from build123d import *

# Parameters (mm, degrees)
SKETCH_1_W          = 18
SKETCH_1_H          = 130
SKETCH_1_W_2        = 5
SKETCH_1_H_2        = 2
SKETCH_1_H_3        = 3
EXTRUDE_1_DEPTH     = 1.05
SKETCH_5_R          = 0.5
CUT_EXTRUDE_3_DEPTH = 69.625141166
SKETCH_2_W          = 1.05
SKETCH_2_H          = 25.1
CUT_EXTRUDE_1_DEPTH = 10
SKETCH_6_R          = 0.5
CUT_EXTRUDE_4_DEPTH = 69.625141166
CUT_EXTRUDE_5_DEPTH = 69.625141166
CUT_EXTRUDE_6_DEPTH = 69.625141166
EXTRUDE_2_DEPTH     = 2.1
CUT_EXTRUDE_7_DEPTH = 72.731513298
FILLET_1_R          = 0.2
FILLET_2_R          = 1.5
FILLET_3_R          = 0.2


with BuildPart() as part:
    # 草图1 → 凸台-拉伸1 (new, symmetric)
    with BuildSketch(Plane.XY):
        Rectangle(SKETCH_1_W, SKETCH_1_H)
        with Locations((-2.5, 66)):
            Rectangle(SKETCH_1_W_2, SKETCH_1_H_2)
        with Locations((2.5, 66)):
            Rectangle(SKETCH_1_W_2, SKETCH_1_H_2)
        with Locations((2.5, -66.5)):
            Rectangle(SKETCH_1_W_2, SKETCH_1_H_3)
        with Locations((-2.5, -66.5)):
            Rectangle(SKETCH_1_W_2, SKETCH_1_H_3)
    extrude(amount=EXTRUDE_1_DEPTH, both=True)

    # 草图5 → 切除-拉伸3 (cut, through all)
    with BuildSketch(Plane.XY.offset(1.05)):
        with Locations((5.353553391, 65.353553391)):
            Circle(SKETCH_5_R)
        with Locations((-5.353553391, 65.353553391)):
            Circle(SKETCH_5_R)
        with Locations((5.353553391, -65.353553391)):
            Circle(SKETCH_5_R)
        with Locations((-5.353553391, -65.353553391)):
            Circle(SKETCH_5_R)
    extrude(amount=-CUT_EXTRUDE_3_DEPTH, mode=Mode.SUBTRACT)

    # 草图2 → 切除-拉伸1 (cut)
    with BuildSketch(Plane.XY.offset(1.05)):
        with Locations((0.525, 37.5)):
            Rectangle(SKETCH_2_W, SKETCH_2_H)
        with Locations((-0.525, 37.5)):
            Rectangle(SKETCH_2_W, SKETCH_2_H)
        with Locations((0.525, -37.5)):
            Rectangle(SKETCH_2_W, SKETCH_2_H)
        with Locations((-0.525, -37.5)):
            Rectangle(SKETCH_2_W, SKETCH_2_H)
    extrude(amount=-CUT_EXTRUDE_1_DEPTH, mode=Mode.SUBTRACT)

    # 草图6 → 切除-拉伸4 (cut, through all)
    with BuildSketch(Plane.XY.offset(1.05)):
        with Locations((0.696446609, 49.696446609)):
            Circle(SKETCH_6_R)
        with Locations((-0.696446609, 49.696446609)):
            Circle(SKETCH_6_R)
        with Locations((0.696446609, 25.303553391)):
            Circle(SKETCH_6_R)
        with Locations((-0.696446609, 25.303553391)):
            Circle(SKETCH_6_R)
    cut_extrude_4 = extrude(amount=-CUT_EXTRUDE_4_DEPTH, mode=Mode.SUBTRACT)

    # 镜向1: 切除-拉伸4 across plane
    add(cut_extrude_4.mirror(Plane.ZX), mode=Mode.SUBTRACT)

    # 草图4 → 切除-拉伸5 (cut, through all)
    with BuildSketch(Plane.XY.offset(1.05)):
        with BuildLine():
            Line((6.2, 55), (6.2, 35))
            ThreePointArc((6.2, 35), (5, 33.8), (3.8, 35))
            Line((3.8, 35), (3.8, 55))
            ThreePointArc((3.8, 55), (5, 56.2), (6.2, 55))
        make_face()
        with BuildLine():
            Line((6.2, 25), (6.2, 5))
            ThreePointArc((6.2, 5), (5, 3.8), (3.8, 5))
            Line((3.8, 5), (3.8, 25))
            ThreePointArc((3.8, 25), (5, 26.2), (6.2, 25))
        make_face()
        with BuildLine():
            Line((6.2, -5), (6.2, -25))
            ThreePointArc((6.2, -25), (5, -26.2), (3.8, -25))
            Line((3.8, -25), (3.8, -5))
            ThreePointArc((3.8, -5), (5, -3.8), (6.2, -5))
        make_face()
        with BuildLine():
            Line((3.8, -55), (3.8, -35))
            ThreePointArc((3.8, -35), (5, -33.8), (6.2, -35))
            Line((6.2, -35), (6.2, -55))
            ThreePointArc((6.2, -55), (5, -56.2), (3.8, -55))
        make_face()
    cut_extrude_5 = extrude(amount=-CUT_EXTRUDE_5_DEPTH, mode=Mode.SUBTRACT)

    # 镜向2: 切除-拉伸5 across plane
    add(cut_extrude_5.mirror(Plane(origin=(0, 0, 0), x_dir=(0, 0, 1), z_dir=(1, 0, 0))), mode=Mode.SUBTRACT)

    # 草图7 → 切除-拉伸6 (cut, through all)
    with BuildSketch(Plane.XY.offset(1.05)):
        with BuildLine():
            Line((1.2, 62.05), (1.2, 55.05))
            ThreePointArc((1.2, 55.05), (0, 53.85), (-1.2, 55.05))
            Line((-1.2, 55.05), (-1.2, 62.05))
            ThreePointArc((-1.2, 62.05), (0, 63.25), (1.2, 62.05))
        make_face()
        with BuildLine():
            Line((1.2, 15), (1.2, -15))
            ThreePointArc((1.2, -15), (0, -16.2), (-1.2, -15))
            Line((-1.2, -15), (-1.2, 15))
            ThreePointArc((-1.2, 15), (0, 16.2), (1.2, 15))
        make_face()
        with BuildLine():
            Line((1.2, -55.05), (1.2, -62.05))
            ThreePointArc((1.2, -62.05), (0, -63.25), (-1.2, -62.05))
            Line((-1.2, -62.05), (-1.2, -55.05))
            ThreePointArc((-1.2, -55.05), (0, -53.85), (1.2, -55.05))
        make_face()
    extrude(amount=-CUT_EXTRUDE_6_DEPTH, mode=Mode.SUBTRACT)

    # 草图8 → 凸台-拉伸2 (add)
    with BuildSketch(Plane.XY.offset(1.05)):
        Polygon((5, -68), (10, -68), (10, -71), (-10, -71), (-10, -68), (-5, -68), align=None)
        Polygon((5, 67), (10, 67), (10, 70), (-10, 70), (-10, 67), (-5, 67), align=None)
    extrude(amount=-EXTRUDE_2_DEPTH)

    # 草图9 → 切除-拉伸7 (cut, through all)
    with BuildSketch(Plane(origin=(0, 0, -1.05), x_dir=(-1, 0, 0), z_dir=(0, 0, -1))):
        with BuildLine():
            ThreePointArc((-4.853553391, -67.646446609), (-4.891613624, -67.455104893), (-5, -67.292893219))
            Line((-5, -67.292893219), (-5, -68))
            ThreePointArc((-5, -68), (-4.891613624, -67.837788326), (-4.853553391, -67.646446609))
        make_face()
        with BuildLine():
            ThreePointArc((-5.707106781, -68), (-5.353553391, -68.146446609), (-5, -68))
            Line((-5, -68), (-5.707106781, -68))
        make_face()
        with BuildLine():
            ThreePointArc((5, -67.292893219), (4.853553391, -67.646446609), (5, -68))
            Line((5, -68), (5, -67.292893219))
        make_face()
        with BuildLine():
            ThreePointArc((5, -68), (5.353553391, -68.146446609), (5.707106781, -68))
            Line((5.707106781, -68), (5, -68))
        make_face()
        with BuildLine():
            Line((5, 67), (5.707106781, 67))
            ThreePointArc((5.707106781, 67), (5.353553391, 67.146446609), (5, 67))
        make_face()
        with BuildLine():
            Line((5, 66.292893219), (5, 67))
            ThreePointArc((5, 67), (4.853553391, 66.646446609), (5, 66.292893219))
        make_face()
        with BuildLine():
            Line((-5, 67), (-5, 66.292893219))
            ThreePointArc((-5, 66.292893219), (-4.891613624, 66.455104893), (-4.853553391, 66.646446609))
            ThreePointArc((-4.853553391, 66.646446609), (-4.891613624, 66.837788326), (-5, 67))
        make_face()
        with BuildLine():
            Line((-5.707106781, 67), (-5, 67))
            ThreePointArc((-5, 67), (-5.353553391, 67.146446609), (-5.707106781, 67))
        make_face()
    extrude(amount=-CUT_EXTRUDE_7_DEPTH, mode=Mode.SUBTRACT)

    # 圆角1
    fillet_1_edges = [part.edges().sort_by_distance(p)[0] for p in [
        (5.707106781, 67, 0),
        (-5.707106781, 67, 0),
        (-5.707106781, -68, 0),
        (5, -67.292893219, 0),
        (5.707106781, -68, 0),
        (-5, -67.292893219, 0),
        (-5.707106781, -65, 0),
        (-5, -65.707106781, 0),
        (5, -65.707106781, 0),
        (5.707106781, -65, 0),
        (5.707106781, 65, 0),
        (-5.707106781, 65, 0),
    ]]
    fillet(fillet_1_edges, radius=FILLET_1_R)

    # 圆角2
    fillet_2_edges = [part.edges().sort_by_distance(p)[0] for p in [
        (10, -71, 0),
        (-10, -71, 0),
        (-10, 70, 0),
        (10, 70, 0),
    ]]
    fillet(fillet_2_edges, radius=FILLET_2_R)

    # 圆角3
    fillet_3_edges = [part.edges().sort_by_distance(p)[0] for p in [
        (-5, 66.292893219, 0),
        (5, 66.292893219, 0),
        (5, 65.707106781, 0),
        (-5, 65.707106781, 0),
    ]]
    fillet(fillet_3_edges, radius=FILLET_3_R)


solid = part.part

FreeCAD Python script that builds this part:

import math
import FreeCAD as App
import Part
import Sketcher


def edges_at(feature, points):
    """Names of the edges that pass closest to the given points."""
    edges = feature.Shape.Edges
    near = lambda p: min(range(len(edges)), key=lambda i: edges[i].distToShape(Part.Vertex(*p))[0])
    return sorted({f"Edge{near(p) + 1}" for p in points})

doc = App.newDocument("Part")
params = doc.addObject("Spreadsheet::Sheet", "Params")
for row, (alias, value) in enumerate([
    ("sketch1_width", "4 mm"),
    ("sketch1_width2", "10 mm"),
    ("sketch1_height", "130 mm"),
    ("sketch1_height2", "3 mm"),
    ("sketch1_height3", "2 mm"),
    ("pad1_length", "2.1 mm"),
    ("sketch2_diameter", "1 mm"),
    ("sketch3_width", "2.1 mm"),
    ("sketch3_height", "25.1 mm"),
    ("pocket2_length", "10 mm"),
    ("sketch4_diameter", "1 mm"),
    ("sketch5_radius", "1.2 mm"),
    ("sketch5_height", "20 mm"),
    ("sketch6_radius", "1.2 mm"),
    ("sketch6_height", "7 mm"),
    ("sketch6_height2", "30 mm"),
    ("sketch7_width", "20 mm"),
    ("sketch7_height", "3 mm"),
    ("pad2_length", "2.1 mm"),
    ("sketch8_radius", "0.5 mm"),
    ("fillet_radius", "0.2 mm"),
    ("fillet2_radius", "1.5 mm"),
    ("fillet3_radius", "0.2 mm"),
], start=1):
    params.set(f"A{row}", alias)
    params.set(f"B{row}", "=" + value)
    params.setAlias(f"B{row}", alias)

body = doc.addObject("PartDesign::Body", "Body")

# Sketch on XY plane
sketch1 = body.newObject("Sketcher::SketchObject", "Sketch")
sketch1.AttachmentSupport = (doc.getObject("XY_Plane"), [""])
sketch1.MapMode = "FlatFace"
sketch1.addGeometry([
    Part.LineSegment(App.Vector(-9, 65, 0), App.Vector(-9, -65, 0)),  # 0
    Part.LineSegment(App.Vector(-9, -65, 0), App.Vector(-5, -65, 0)),  # 1
    Part.LineSegment(App.Vector(-5, -65, 0), App.Vector(-5, -68, 0)),  # 2
    Part.LineSegment(App.Vector(-5, -68, 0), App.Vector(5, -68, 0)),  # 3
    Part.LineSegment(App.Vector(5, -68, 0), App.Vector(5, -65, 0)),  # 4
    Part.LineSegment(App.Vector(5, -65, 0), App.Vector(9, -65, 0)),  # 5
    Part.LineSegment(App.Vector(9, -65, 0), App.Vector(9, 65, 0)),  # 6
    Part.LineSegment(App.Vector(9, 65, 0), App.Vector(5, 65, 0)),  # 7
    Part.LineSegment(App.Vector(5, 65, 0), App.Vector(5, 67, 0)),  # 8
    Part.LineSegment(App.Vector(5, 67, 0), App.Vector(-5, 67, 0)),  # 9
    Part.LineSegment(App.Vector(-5, 67, 0), App.Vector(-5, 65, 0)),  # 10
    Part.LineSegment(App.Vector(-5, 65, 0), App.Vector(-9, 65, 0)),  # 11
], False)
sketch1.addConstraint([
    Sketcher.Constraint("Coincident", 0, 2, 1, 1),
    Sketcher.Constraint("Coincident", 1, 2, 2, 1),
    Sketcher.Constraint("Coincident", 2, 2, 3, 1),
    Sketcher.Constraint("Coincident", 3, 2, 4, 1),
    Sketcher.Constraint("Coincident", 4, 2, 5, 1),
    Sketcher.Constraint("Coincident", 5, 2, 6, 1),
    Sketcher.Constraint("Coincident", 6, 2, 7, 1),
    Sketcher.Constraint("Coincident", 7, 2, 8, 1),
    Sketcher.Constraint("Coincident", 8, 2, 9, 1),
    Sketcher.Constraint("Coincident", 9, 2, 10, 1),
    Sketcher.Constraint("Coincident", 10, 2, 11, 1),
    Sketcher.Constraint("Coincident", 11, 2, 0, 1),
    Sketcher.Constraint("Vertical", 0),
    Sketcher.Constraint("Horizontal", 1),
    Sketcher.Constraint("Vertical", 2),
    Sketcher.Constraint("Horizontal", 3),
    Sketcher.Constraint("Vertical", 4),
    Sketcher.Constraint("Horizontal", 5),
    Sketcher.Constraint("Vertical", 6),
    Sketcher.Constraint("Horizontal", 7),
    Sketcher.Constraint("Vertical", 8),
    Sketcher.Constraint("Horizontal", 9),
    Sketcher.Constraint("Vertical", 10),
    Sketcher.Constraint("Horizontal", 11),
    Sketcher.Constraint("Symmetric", 0, 2, 6, 2, -1, 1),
    Sketcher.Constraint("Symmetric", 4, 2, 10, 2, -1, 1),
    Sketcher.Constraint("Symmetric", 1, 2, 4, 2, -2),
    Sketcher.Constraint("Vertical", 4, 2, 7, 2),
    Sketcher.Constraint("DistanceX", 1, 1, 1, 2, 4.0),
    Sketcher.Constraint("DistanceX", 3, 1, 3, 2, 10.0),
    Sketcher.Constraint("DistanceY", 0, 2, 0, 1, 130.0),
    Sketcher.Constraint("DistanceY", 2, 2, 2, 1, 3.0),
    Sketcher.Constraint("DistanceY", 8, 1, 8, 2, 2.0),
])
sketch1.setExpression("Constraints[28]", "Params.sketch1_width")
sketch1.setExpression("Constraints[29]", "Params.sketch1_width2")
sketch1.setExpression("Constraints[30]", "Params.sketch1_height")
sketch1.setExpression("Constraints[31]", "Params.sketch1_height2")
sketch1.setExpression("Constraints[32]", "Params.sketch1_height3")
pad1 = body.newObject("PartDesign::Pad", "Pad")
pad1.Profile = sketch1
pad1.setExpression("Length", "Params.pad1_length")
pad1.Midplane = True

# Sketch on XY plane
sketch2 = body.newObject("Sketcher::SketchObject", "Sketch001")
sketch2.AttachmentSupport = (doc.getObject("XY_Plane"), [""])
sketch2.MapMode = "FlatFace"
sketch2.AttachmentOffset = App.Placement(App.Vector(0, 0, 1.05), App.Rotation())
sketch2.addGeometry([
    Part.Circle(App.Vector(5.4, 65.4, 0), App.Vector(0, 0, 1), 0.5),
    Part.Circle(App.Vector(-5.4, 65.4, 0), App.Vector(0, 0, 1), 0.5),
    Part.Circle(App.Vector(5.4, -65.4, 0), App.Vector(0, 0, 1), 0.5),
    Part.Circle(App.Vector(-5.4, -65.4, 0), App.Vector(0, 0, 1), 0.5),
], False)
sketch2.addConstraint([
    Sketcher.Constraint("Equal", 0, 1),
    Sketcher.Constraint("Equal", 1, 2),
    Sketcher.Constraint("Equal", 2, 3),
    Sketcher.Constraint("Symmetric", 1, 3, 2, 3, -1, 1),
    Sketcher.Constraint("Symmetric", 0, 3, 3, 3, -1, 1),
    Sketcher.Constraint("Symmetric", 0, 3, 1, 3, -2),
    Sketcher.Constraint("Diameter", 0, 1.0),
    Sketcher.Constraint("DistanceX", -1, 1, 0, 3, 5.353553),
    Sketcher.Constraint("DistanceY", -1, 1, 0, 3, 65.353553),
])
sketch2.setExpression("Constraints[6]", "Params.sketch2_diameter")
pocket1 = body.newObject("PartDesign::Pocket", "Pocket")
pocket1.Profile = sketch2
pocket1.Type = "ThroughAll"

# Sketch on XY plane
sketch3 = body.newObject("Sketcher::SketchObject", "Sketch002")
sketch3.AttachmentSupport = (doc.getObject("XY_Plane"), [""])
sketch3.MapMode = "FlatFace"
sketch3.AttachmentOffset = App.Placement(App.Vector(0, 0, 1.05), App.Rotation())
sketch3.addGeometry([
    Part.LineSegment(App.Vector(1.1, 24.9, 0), App.Vector(1.1, 50, 0)),  # 0
    Part.LineSegment(App.Vector(1.1, 50, 0), App.Vector(-1.1, 50, 0)),  # 1
    Part.LineSegment(App.Vector(-1.1, 50, 0), App.Vector(-1.1, 24.9, 0)),  # 2
    Part.LineSegment(App.Vector(-1.1, 24.9, 0), App.Vector(1.1, 24.9, 0)),  # 3
    Part.LineSegment(App.Vector(1.1, -50, 0), App.Vector(1.1, -24.9, 0)),  # 4
    Part.LineSegment(App.Vector(1.1, -24.9, 0), App.Vector(-1.1, -24.9, 0)),  # 5
    Part.LineSegment(App.Vector(-1.1, -24.9, 0), App.Vector(-1.1, -50, 0)),  # 6
    Part.LineSegment(App.Vector(-1.1, -50, 0), App.Vector(1.1, -50, 0)),  # 7
], False)
sketch3.addConstraint([
    Sketcher.Constraint("Coincident", 0, 2, 1, 1),
    Sketcher.Constraint("Coincident", 1, 2, 2, 1),
    Sketcher.Constraint("Coincident", 2, 2, 3, 1),
    Sketcher.Constraint("Coincident", 3, 2, 0, 1),
    Sketcher.Constraint("Coincident", 4, 2, 5, 1),
    Sketcher.Constraint("Coincident", 5, 2, 6, 1),
    Sketcher.Constraint("Coincident", 6, 2, 7, 1),
    Sketcher.Constraint("Coincident", 7, 2, 4, 1),
    Sketcher.Constraint("Vertical", 0),
    Sketcher.Constraint("Horizontal", 1),
    Sketcher.Constraint("Vertical", 2),
    Sketcher.Constraint("Horizontal", 3),
    Sketcher.Constraint("Vertical", 4),
    Sketcher.Constraint("Horizontal", 5),
    Sketcher.Constraint("Vertical", 6),
    Sketcher.Constraint("Horizontal", 7),
    Sketcher.Constraint("Symmetric", 2, 2, 4, 2, -1, 1),
    Sketcher.Constraint("Symmetric", 0, 2, 6, 2, -1, 1),
    Sketcher.Constraint("Vertical", 3, 2, 4, 2),
    Sketcher.Constraint("DistanceX", 1, 2, 1, 1, 2.1),
    Sketcher.Constraint("DistanceY", 0, 1, 0, 2, 25.1),
    Sketcher.Constraint("DistanceY", 4, 2, 0, 2, 75.0),
])
sketch3.setExpression("Constraints[19]", "Params.sketch3_width")
sketch3.setExpression("Constraints[20]", "Params.sketch3_height")
pocket2 = body.newObject("PartDesign::Pocket", "Pocket001")
pocket2.Profile = sketch3
pocket2.setExpression("Length", "Params.pocket2_length")

# Sketch on XY plane
sketch4 = body.newObject("Sketcher::SketchObject", "Sketch003")
sketch4.AttachmentSupport = (doc.getObject("XY_Plane"), [""])
sketch4.MapMode = "FlatFace"
sketch4.AttachmentOffset = App.Placement(App.Vector(0, 0, 1.05), App.Rotation())
sketch4.addGeometry([
    Part.Circle(App.Vector(0.7, 49.7, 0), App.Vector(0, 0, 1), 0.5),
    Part.Circle(App.Vector(-0.7, 49.7, 0), App.Vector(0, 0, 1), 0.5),
    Part.Circle(App.Vector(0.7, 25.3, 0), App.Vector(0, 0, 1), 0.5),
    Part.Circle(App.Vector(-0.7, 25.3, 0), App.Vector(0, 0, 1), 0.5),
], False)
sketch4.addConstraint([
    Sketcher.Constraint("Equal", 0, 1),
    Sketcher.Constraint("Equal", 1, 2),
    Sketcher.Constraint("Equal", 2, 3),
    Sketcher.Constraint("Symmetric", 0, 3, 1, 3, -2),
    Sketcher.Constraint("Symmetric", 2, 3, 3, 3, -2),
    Sketcher.Constraint("Vertical", 0, 3, 2, 3),
    Sketcher.Constraint("Diameter", 0, 1.0),
    Sketcher.Constraint("DistanceX", -1, 1, 0, 3, 0.696447),
    Sketcher.Constraint("DistanceY", -1, 1, 0, 3, 49.696447),
    Sketcher.Constraint("DistanceY", -1, 1, 2, 3, 25.303553),
])
sketch4.setExpression("Constraints[6]", "Params.sketch4_diameter")
pocket3 = body.newObject("PartDesign::Pocket", "Pocket002")
pocket3.Profile = sketch4
pocket3.Type = "ThroughAll"
doc.recompute()

mirrored = body.newObject("PartDesign::Mirrored", "Mirrored")
mirrored.Originals = [pocket3]
mirrored.MirrorPlane = (doc.getObject("XZ_Plane"), [""])
body.Tip = mirrored

# Sketch on XY plane
sketch5 = body.newObject("Sketcher::SketchObject", "Sketch004")
sketch5.AttachmentSupport = (doc.getObject("XY_Plane"), [""])
sketch5.MapMode = "FlatFace"
sketch5.AttachmentOffset = App.Placement(App.Vector(0, 0, 1.05), App.Rotation())
sketch5.addGeometry([
    Part.LineSegment(App.Vector(6.2, 35, 0), App.Vector(6.2, 55, 0)),  # 0
    Part.ArcOfCircle(Part.Circle(App.Vector(5, 55, 0), App.Vector(0, 0, 1), 1.2), math.radians(0), math.radians(180)),  # 1
    Part.LineSegment(App.Vector(3.8, 55, 0), App.Vector(3.8, 35, 0)),  # 2
    Part.ArcOfCircle(Part.Circle(App.Vector(5, 35, 0), App.Vector(0, 0, 1), 1.2), math.radians(180), math.radians(360)),  # 3
    Part.LineSegment(App.Vector(6.2, 5, 0), App.Vector(6.2, 25, 0)),  # 4
    Part.ArcOfCircle(Part.Circle(App.Vector(5, 25, 0), App.Vector(0, 0, 1), 1.2), math.radians(0), math.radians(180)),  # 5
    Part.LineSegment(App.Vector(3.8, 25, 0), App.Vector(3.8, 5, 0)),  # 6
    Part.ArcOfCircle(Part.Circle(App.Vector(5, 5, 0), App.Vector(0, 0, 1), 1.2), math.radians(180), math.radians(360)),  # 7
    Part.LineSegment(App.Vector(6.2, -25, 0), App.Vector(6.2, -5, 0)),  # 8
    Part.ArcOfCircle(Part.Circle(App.Vector(5, -5, 0), App.Vector(0, 0, 1), 1.2), math.radians(0), math.radians(180)),  # 9
    Part.LineSegment(App.Vector(3.8, -5, 0), App.Vector(3.8, -25, 0)),  # 10
    Part.ArcOfCircle(Part.Circle(App.Vector(5, -25, 0), App.Vector(0, 0, 1), 1.2), math.radians(180), math.radians(360)),  # 11
    Part.LineSegment(App.Vector(3.8, -35, 0), App.Vector(3.8, -55, 0)),  # 12
    Part.ArcOfCircle(Part.Circle(App.Vector(5, -55, 0), App.Vector(0, 0, 1), 1.2), math.radians(180), math.radians(360)),  # 13
    Part.LineSegment(App.Vector(6.2, -55, 0), App.Vector(6.2, -35, 0)),  # 14
    Part.ArcOfCircle(Part.Circle(App.Vector(5, -35, 0), App.Vector(0, 0, 1), 1.2), math.radians(0), math.radians(180)),  # 15
], False)
sketch5.addConstraint([
    Sketcher.Constraint("Tangent", 0, 2, 1, 1),
    Sketcher.Constraint("Tangent", 1, 2, 2, 1),
    Sketcher.Constraint("Tangent", 2, 2, 3, 1),
    Sketcher.Constraint("Tangent", 3, 2, 0, 1),
    Sketcher.Constraint("Tangent", 4, 2, 5, 1),
    Sketcher.Constraint("Tangent", 5, 2, 6, 1),
    Sketcher.Constraint("Tangent", 6, 2, 7, 1),
    Sketcher.Constraint("Tangent", 7, 2, 4, 1),
    Sketcher.Constraint("Tangent", 8, 2, 9, 1),
    Sketcher.Constraint("Tangent", 9, 2, 10, 1),
    Sketcher.Constraint("Tangent", 10, 2, 11, 1),
    Sketcher.Constraint("Tangent", 11, 2, 8, 1),
    Sketcher.Constraint("Tangent", 12, 2, 13, 1),
    Sketcher.Constraint("Tangent", 13, 2, 14, 1),
    Sketcher.Constraint("Tangent", 14, 2, 15, 1),
    Sketcher.Constraint("Tangent", 15, 2, 12, 1),
    Sketcher.Constraint("Vertical", 0),
    Sketcher.Constraint("Vertical", 2),
    Sketcher.Constraint("Vertical", 4),
    Sketcher.Constraint("Vertical", 6),
    Sketcher.Constraint("Vertical", 8),
    Sketcher.Constraint("Vertical", 10),
    Sketcher.Constraint("Vertical", 12),
    Sketcher.Constraint("Vertical", 14),
    Sketcher.Constraint("Equal", 3, 5),
    Sketcher.Constraint("Equal", 7, 9),
    Sketcher.Constraint("Equal", 11, 13),
    Sketcher.Constraint("Symmetric", 7, 3, 9, 3, -1),
    Sketcher.Constraint("Symmetric", 1, 3, 13, 3, -1),
    Sketcher.Constraint("Vertical", 3, 3, 5, 3),
    Sketcher.Constraint("Equal", 2, 4),
    Sketcher.Constraint("Equal", 6, 8),
    Sketcher.Constraint("Equal", 10, 12),
    Sketcher.Constraint("Radius", 1, 1.2),
    Sketcher.Constraint("DistanceY", 0, 1, 0, 2, 20.0),
    Sketcher.Constraint("DistanceX", -1, 1, 1, 3, 5.0),
    Sketcher.Constraint("DistanceY", -1, 1, 1, 3, 55.0),
    Sketcher.Constraint("DistanceY", -1, 1, 5, 3, 25.0),
])
sketch5.setExpression("Constraints[33]", "Params.sketch5_radius")
sketch5.setExpression("Constraints[34]", "Params.sketch5_height")
pocket4 = body.newObject("PartDesign::Pocket", "Pocket003")
pocket4.Profile = sketch5
pocket4.Type = "ThroughAll"
doc.recompute()

mirrored2 = body.newObject("PartDesign::Mirrored", "Mirrored001")
mirrored2.Originals = [pocket4]
mirrored2.MirrorPlane = (doc.getObject("YZ_Plane"), [""])
body.Tip = mirrored2

# Sketch on XY plane
sketch6 = body.newObject("Sketcher::SketchObject", "Sketch005")
sketch6.AttachmentSupport = (doc.getObject("XY_Plane"), [""])
sketch6.MapMode = "FlatFace"
sketch6.AttachmentOffset = App.Placement(App.Vector(0, 0, 1.05), App.Rotation())
sketch6.addGeometry([
    Part.LineSegment(App.Vector(1.2, 55, 0), App.Vector(1.2, 62, 0)),  # 0
    Part.ArcOfCircle(Part.Circle(App.Vector(0, 62, 0), App.Vector(0, 0, 1), 1.2), math.radians(0), math.radians(180)),  # 1
    Part.LineSegment(App.Vector(-1.2, 62, 0), App.Vector(-1.2, 55, 0)),  # 2
    Part.ArcOfCircle(Part.Circle(App.Vector(0, 55, 0), App.Vector(0, 0, 1), 1.2), math.radians(180), math.radians(360)),  # 3
    Part.LineSegment(App.Vector(1.2, -15, 0), App.Vector(1.2, 15, 0)),  # 4
    Part.ArcOfCircle(Part.Circle(App.Vector(0, 15, 0), App.Vector(0, 0, 1), 1.2), math.radians(0), math.radians(180)),  # 5
    Part.LineSegment(App.Vector(-1.2, 15, 0), App.Vector(-1.2, -15, 0)),  # 6
    Part.ArcOfCircle(Part.Circle(App.Vector(0, -15, 0), App.Vector(0, 0, 1), 1.2), math.radians(180), math.radians(360)),  # 7
    Part.LineSegment(App.Vector(1.2, -62, 0), App.Vector(1.2, -55, 0)),  # 8
    Part.ArcOfCircle(Part.Circle(App.Vector(0, -55, 0), App.Vector(0, 0, 1), 1.2), math.radians(0), math.radians(180)),  # 9
    Part.LineSegment(App.Vector(-1.2, -55, 0), App.Vector(-1.2, -62, 0)),  # 10
    Part.ArcOfCircle(Part.Circle(App.Vector(0, -62, 0), App.Vector(0, 0, 1), 1.2), math.radians(180), math.radians(360)),  # 11
], False)
sketch6.addConstraint([
    Sketcher.Constraint("Tangent", 0, 2, 1, 1),
    Sketcher.Constraint("Tangent", 1, 2, 2, 1),
    Sketcher.Constraint("Tangent", 2, 2, 3, 1),
    Sketcher.Constraint("Tangent", 3, 2, 0, 1),
    Sketcher.Constraint("Tangent", 4, 2, 5, 1),
    Sketcher.Constraint("Tangent", 5, 2, 6, 1),
    Sketcher.Constraint("Tangent", 6, 2, 7, 1),
    Sketcher.Constraint("Tangent", 7, 2, 4, 1),
    Sketcher.Constraint("Tangent", 8, 2, 9, 1),
    Sketcher.Constraint("Tangent", 9, 2, 10, 1),
    Sketcher.Constraint("Tangent", 10, 2, 11, 1),
    Sketcher.Constraint("Tangent", 11, 2, 8, 1),
    Sketcher.Constraint("Vertical", 0),
    Sketcher.Constraint("Vertical", 2),
    Sketcher.Constraint("Vertical", 4),
    Sketcher.Constraint("Vertical", 6),
    Sketcher.Constraint("Vertical", 8),
    Sketcher.Constraint("Vertical", 10),
    Sketcher.Constraint("Equal", 3, 5),
    Sketcher.Constraint("Equal", 7, 9),
    Sketcher.Constraint("Symmetric", 5, 3, 7, 3, -1, 1),
    Sketcher.Constraint("Symmetric", 3, 3, 9, 3, -1, 1),
    Sketcher.Constraint("Symmetric", 1, 3, 11, 3, -1),
    Sketcher.Constraint("Radius", 1, 1.2),
    Sketcher.Constraint("DistanceY", 0, 1, 0, 2, 7.0),
    Sketcher.Constraint("DistanceY", 4, 1, 4, 2, 30.0),
    Sketcher.Constraint("DistanceY", 9, 3, 3, 3, 110.1),
])
sketch6.setExpression("Constraints[23]", "Params.sketch6_radius")
sketch6.setExpression("Constraints[24]", "Params.sketch6_height")
sketch6.setExpression("Constraints[25]", "Params.sketch6_height2")
pocket5 = body.newObject("PartDesign::Pocket", "Pocket004")
pocket5.Profile = sketch6
pocket5.Type = "ThroughAll"

# Sketch on XY plane
sketch7 = body.newObject("Sketcher::SketchObject", "Sketch006")
sketch7.AttachmentSupport = (doc.getObject("XY_Plane"), [""])
sketch7.MapMode = "FlatFace"
sketch7.AttachmentOffset = App.Placement(App.Vector(0, 0, 1.05), App.Rotation())
sketch7.addGeometry([
    Part.LineSegment(App.Vector(10, -68, 0), App.Vector(-10, -68, 0)),  # 0
    Part.LineSegment(App.Vector(-10, -68, 0), App.Vector(-10, -71, 0)),  # 1
    Part.LineSegment(App.Vector(-10, -71, 0), App.Vector(10, -71, 0)),  # 2
    Part.LineSegment(App.Vector(10, -71, 0), App.Vector(10, -68, 0)),  # 3
    Part.LineSegment(App.Vector(10, 67, 0), App.Vector(10, 70, 0)),  # 4
    Part.LineSegment(App.Vector(10, 70, 0), App.Vector(-10, 70, 0)),  # 5
    Part.LineSegment(App.Vector(-10, 70, 0), App.Vector(-10, 67, 0)),  # 6
    Part.LineSegment(App.Vector(-10, 67, 0), App.Vector(10, 67, 0)),  # 7
], False)
sketch7.addConstraint([
    Sketcher.Constraint("Coincident", 0, 2, 1, 1),
    Sketcher.Constraint("Coincident", 1, 2, 2, 1),
    Sketcher.Constraint("Coincident", 2, 2, 3, 1),
    Sketcher.Constraint("Coincident", 3, 2, 0, 1),
    Sketcher.Constraint("Coincident", 4, 2, 5, 1),
    Sketcher.Constraint("Coincident", 5, 2, 6, 1),
    Sketcher.Constraint("Coincident", 6, 2, 7, 1),
    Sketcher.Constraint("Coincident", 7, 2, 4, 1),
    Sketcher.Constraint("Horizontal", 0),
    Sketcher.Constraint("Vertical", 1),
    Sketcher.Constraint("Horizontal", 2),
    Sketcher.Constraint("Vertical", 3),
    Sketcher.Constraint("Vertical", 4),
    Sketcher.Constraint("Horizontal", 5),
    Sketcher.Constraint("Vertical", 6),
    Sketcher.Constraint("Horizontal", 7),
    Sketcher.Constraint("Vertical", 3, 2, 4, 2),
    Sketcher.Constraint("Vertical", 1, 2, 5, 2),
    Sketcher.Constraint("Equal", 3, 4),
    Sketcher.Constraint("DistanceX", 0, 2, 0, 1, 20.0),
    Sketcher.Constraint("DistanceY", 1, 2, 1, 1, 3.0),
    Sketcher.Constraint("DistanceX", 0, 2, -1, 1, 10.0),
    Sketcher.Constraint("DistanceY", 0, 2, -1, 1, 68.0),
    Sketcher.Constraint("DistanceY", -1, 1, 4, 2, 70.0),
])
sketch7.setExpression("Constraints[19]", "Params.sketch7_width")
sketch7.setExpression("Constraints[20]", "Params.sketch7_height")
pad2 = body.newObject("PartDesign::Pad", "Pad001")
pad2.Profile = sketch7
pad2.setExpression("Length", "Params.pad2_length")
pad2.Reversed = True

# Sketch on XY plane
sketch8 = body.newObject("Sketcher::SketchObject", "Sketch007")
sketch8.AttachmentSupport = (doc.getObject("XY_Plane"), [""])
sketch8.MapMode = "FlatFace"
sketch8.AttachmentOffset = App.Placement(App.Vector(0, 0, -1.05), App.Rotation())
sketch8.addGeometry([
    Part.ArcOfCircle(Part.Circle(App.Vector(5.35, -67.65, 0), App.Vector(0, 0, 1), 0.5), math.radians(135), math.radians(180)),  # 0
    Part.LineSegment(App.Vector(5, -67.29, 0), App.Vector(5, -68, 0)),  # 1
    Part.ArcOfCircle(Part.Circle(App.Vector(5.35, -67.65, 0), App.Vector(0, 0, 1), 0.5), math.radians(180), math.radians(225)),  # 2
    Part.ArcOfCircle(Part.Circle(App.Vector(5.35, -67.65, 0), App.Vector(0, 0, 1), 0.5), math.radians(-135), math.radians(-45)),  # 3
    Part.LineSegment(App.Vector(5, -68, 0), App.Vector(5.71, -68, 0)),  # 4
    Part.ArcOfCircle(Part.Circle(App.Vector(-5.35, -67.65, 0), App.Vector(0, 0, 1), 0.5), math.radians(-45), math.radians(45)),  # 5
    Part.LineSegment(App.Vector(-5, -68, 0), App.Vector(-5, -67.29, 0)),  # 6
    Part.ArcOfCircle(Part.Circle(App.Vector(-5.35, -67.65, 0), App.Vector(0, 0, 1), 0.5), math.radians(-135), math.radians(-45)),  # 7
    Part.LineSegment(App.Vector(-5.71, -68, 0), App.Vector(-5, -68, 0)),  # 8
    Part.LineSegment(App.Vector(-5, 67, 0), App.Vector(-5.71, 67, 0)),  # 9
    Part.ArcOfCircle(Part.Circle(App.Vector(-5.35, 66.65, 0), App.Vector(0, 0, 1), 0.5), math.radians(45), math.radians(135)),  # 10
    Part.LineSegment(App.Vector(-5, 66.29, 0), App.Vector(-5, 67, 0)),  # 11
    Part.ArcOfCircle(Part.Circle(App.Vector(-5.35, 66.65, 0), App.Vector(0, 0, 1), 0.5), math.radians(-45), math.radians(45)),  # 12
    Part.LineSegment(App.Vector(5, 67, 0), App.Vector(5, 66.29, 0)),  # 13
    Part.ArcOfCircle(Part.Circle(App.Vector(5.35, 66.65, 0), App.Vector(0, 0, 1), 0.5), math.radians(180), math.radians(225)),  # 14
    Part.ArcOfCircle(Part.Circle(App.Vector(5.35, 66.65, 0), App.Vector(0, 0, 1), 0.5), math.radians(135), math.radians(180)),  # 15
    Part.LineSegment(App.Vector(5.71, 67, 0), App.Vector(5, 67, 0)),  # 16
    Part.ArcOfCircle(Part.Circle(App.Vector(5.35, 66.65, 0), App.Vector(0, 0, 1), 0.5), math.radians(45), math.radians(135)),  # 17
], False)
sketch8.addConstraint([
    Sketcher.Constraint("Coincident", 0, 1, 1, 1),
    Sketcher.Constraint("Coincident", 1, 2, 2, 2),
    Sketcher.Constraint("Tangent", 2, 1, 0, 2),
    Sketcher.Constraint("Coincident", 3, 1, 4, 1),
    Sketcher.Constraint("Coincident", 4, 2, 3, 2),
    Sketcher.Constraint("Coincident", 5, 1, 6, 1),
    Sketcher.Constraint("Coincident", 6, 2, 5, 2),
    Sketcher.Constraint("Coincident", 7, 1, 8, 1),
    Sketcher.Constraint("Coincident", 8, 2, 7, 2),
    Sketcher.Constraint("Coincident", 9, 1, 10, 1),
    Sketcher.Constraint("Coincident", 10, 2, 9, 2),
    Sketcher.Constraint("Coincident", 11, 1, 12, 1),
    Sketcher.Constraint("Coincident", 12, 2, 11, 2),
    Sketcher.Constraint("Coincident", 13, 2, 14, 2),
    Sketcher.Constraint("Tangent", 14, 1, 15, 2),
    Sketcher.Constraint("Coincident", 15, 1, 13, 1),
    Sketcher.Constraint("Coincident", 16, 1, 17, 1),
    Sketcher.Constraint("Coincident", 17, 2, 16, 2),
    Sketcher.Constraint("Vertical", 1),
    Sketcher.Constraint("Horizontal", 4),
    Sketcher.Constraint("Vertical", 6),
    Sketcher.Constraint("Horizontal", 8),
    Sketcher.Constraint("Horizontal", 9),
    Sketcher.Constraint("Vertical", 11),
    Sketcher.Constraint("Vertical", 13),
    Sketcher.Constraint("Horizontal", 16),
    Sketcher.Constraint("Coincident", 3, 3, 0, 3),
    Sketcher.Constraint("Coincident", 7, 3, 5, 3),
    Sketcher.Constraint("Coincident", 12, 3, 10, 3),
    Sketcher.Constraint("Coincident", 17, 3, 14, 3),
    Sketcher.Constraint("Coincident", 3, 1, 1, 2),
    Sketcher.Constraint("Coincident", 8, 2, 5, 1),
    Sketcher.Constraint("Coincident", 12, 2, 9, 1),
    Sketcher.Constraint("Coincident", 17, 2, 15, 1),
    Sketcher.Constraint("Equal", 0, 2),
    Sketcher.Constraint("Equal", 3, 5),
    Sketcher.Constraint("Equal", 7, 10),
    Sketcher.Constraint("Equal", 12, 14),
    Sketcher.Constraint("Equal", 14, 15),
    Sketcher.Constraint("Symmetric", 0, 3, 5, 3, -2),
    Sketcher.Constraint("Symmetric", 10, 3, 14, 3, -2),
    Sketcher.Constraint("Horizontal", 7, 3, 2, 1),
    Sketcher.Constraint("Horizontal", 4, 2, 5, 1),
    Sketcher.Constraint("Horizontal", 11, 1, 13, 2),
    Sketcher.Constraint("Horizontal", 17, 3, 14, 1),
    Sketcher.Constraint("Vertical", 7, 3, 10, 3),
    Sketcher.Constraint("Vertical", 8, 2, 9, 1),
    Sketcher.Constraint("Equal", 16, 1),
    Sketcher.Constraint("Radius", 0, 0.5),
    Sketcher.Constraint("DistanceX", -1, 1, 0, 1, 5.0),
    Sketcher.Constraint("DistanceY", 1, 2, -1, 1, 68.0),
    Sketcher.Constraint("DistanceY", -1, 1, 9, 1, 67.0),
])
sketch8.setExpression("Constraints[48]", "Params.sketch8_radius")
pocket6 = body.newObject("PartDesign::Pocket", "Pocket005")
pocket6.Profile = sketch8
pocket6.Type = "ThroughAll"
pocket6.Reversed = True
doc.recompute()

fillet = body.newObject("PartDesign::Fillet", "Fillet")
fillet.Base = (pocket6, edges_at(pocket6, [
    (5.707, 67, 0),
    (-5.707, 67, 0),
    (-5.707, -68, 0),
    (5, -67.293, 0),
    (5.707, -68, 0),
    (-5, -67.293, 0),
    (-5.707, -65, 0),
    (-5, -65.707, 0),
    (5, -65.707, 0),
    (5.707, -65, 0),
    (5.707, 65, 0),
    (-5.707, 65, 0),
]))
fillet.setExpression("Radius", "Params.fillet_radius")
doc.recompute()

fillet2 = body.newObject("PartDesign::Fillet", "Fillet001")
fillet2.Base = (fillet, edges_at(fillet, [
    (10, -71, 0),
    (-10, -71, 0),
    (-10, 70, 0),
    (10, 70, 0),
]))
fillet2.setExpression("Radius", "Params.fillet2_radius")
doc.recompute()

fillet3 = body.newObject("PartDesign::Fillet", "Fillet002")
fillet3.Base = (fillet2, edges_at(fillet2, [
    (-5, 66.293, 0),
    (5, 66.293, 0),
    (5, 65.707, 0),
    (-5, 65.707, 0),
]))
fillet3.setExpression("Radius", "Params.fillet3_radius")

doc.recompute()
